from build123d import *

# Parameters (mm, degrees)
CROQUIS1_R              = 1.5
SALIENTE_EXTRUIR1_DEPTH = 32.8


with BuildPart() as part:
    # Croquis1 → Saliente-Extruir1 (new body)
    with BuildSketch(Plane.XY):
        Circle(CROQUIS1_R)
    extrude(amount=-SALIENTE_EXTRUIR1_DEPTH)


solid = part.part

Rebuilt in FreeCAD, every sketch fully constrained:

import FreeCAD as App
import Part
import Sketcher

doc = App.newDocument("Part")
body = doc.addObject("PartDesign::Body", "Body")

sketch1 = body.newObject("Sketcher::SketchObject", "Sketch")
sketch1.AttachmentSupport = (doc.getObject("XY_Plane"), [""])
sketch1.MapMode = "FlatFace"
sketch1.addGeometry(Part.Circle(App.Vector(0, 0, 0), App.Vector(0, 0, 1), 1.5), False)
sketch1.addConstraint(Sketcher.Constraint("Coincident", 0, 3, -1, 1))
sketch1.addConstraint(Sketcher.Constraint("Diameter", 0, 3.0))
pad1 = body.newObject("PartDesign::Pad", "Pad")
pad1.Profile = sketch1
pad1.Length = 32.8
pad1.Reversed = True

doc.recompute()
